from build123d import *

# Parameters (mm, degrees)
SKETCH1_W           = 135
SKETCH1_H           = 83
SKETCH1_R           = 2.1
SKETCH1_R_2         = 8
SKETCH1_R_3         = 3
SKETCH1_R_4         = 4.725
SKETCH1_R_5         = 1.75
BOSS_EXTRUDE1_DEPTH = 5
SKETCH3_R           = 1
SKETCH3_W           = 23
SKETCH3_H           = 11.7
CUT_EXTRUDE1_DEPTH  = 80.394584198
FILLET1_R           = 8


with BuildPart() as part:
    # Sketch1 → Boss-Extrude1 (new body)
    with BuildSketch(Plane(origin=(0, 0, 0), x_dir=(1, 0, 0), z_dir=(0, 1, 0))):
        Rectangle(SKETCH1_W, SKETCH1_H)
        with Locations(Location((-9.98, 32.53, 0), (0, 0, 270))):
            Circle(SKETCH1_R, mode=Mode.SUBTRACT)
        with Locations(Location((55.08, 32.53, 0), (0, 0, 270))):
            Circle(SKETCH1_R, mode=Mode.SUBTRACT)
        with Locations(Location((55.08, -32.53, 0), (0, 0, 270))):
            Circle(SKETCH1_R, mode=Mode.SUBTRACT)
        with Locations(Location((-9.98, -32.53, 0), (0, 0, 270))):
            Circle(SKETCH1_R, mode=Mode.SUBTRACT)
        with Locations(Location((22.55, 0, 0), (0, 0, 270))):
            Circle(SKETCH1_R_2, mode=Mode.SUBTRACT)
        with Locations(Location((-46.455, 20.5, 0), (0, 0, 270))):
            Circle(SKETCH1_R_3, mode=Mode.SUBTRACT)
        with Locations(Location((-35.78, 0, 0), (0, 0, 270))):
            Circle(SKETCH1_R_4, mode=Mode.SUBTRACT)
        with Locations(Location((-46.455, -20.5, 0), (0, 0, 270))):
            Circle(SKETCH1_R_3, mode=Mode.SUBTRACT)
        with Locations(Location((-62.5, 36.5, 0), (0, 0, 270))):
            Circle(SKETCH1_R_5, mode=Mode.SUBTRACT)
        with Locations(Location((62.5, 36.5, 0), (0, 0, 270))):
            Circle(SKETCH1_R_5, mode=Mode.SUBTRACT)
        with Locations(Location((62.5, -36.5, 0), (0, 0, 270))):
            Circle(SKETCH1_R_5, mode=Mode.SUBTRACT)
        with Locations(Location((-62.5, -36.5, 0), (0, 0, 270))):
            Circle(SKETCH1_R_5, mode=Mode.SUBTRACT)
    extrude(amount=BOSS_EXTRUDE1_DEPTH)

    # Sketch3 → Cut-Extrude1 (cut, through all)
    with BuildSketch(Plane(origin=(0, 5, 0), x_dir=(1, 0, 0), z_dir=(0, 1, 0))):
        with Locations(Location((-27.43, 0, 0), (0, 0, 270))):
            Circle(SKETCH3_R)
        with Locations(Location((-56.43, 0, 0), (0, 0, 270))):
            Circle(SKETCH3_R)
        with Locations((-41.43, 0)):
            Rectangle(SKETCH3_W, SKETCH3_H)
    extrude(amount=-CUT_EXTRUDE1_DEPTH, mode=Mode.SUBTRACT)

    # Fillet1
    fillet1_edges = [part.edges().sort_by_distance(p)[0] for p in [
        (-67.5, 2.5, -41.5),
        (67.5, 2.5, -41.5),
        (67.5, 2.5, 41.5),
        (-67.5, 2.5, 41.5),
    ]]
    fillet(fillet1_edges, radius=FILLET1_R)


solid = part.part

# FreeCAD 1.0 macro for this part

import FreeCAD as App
import Part
import Sketcher
Q = App.Units.Quantity


def edges_at(feature, points):
    """Names of the edges that pass closest to the given points."""
    edges = feature.Shape.Edges
    near = lambda p: min(range(len(edges)), key=lambda i: edges[i].distToShape(Part.Vertex(*p))[0])
    return sorted({f"Edge{near(p) + 1}" for p in points})


def add_polygon(sketch, points):
    """Adds a closed chain of lines whose ends are joined by coincident constraints."""
    first, n = sketch.GeometryCount, len(points)
    for a, b in zip(points, points[1:] + points[:1]):
        sketch.addGeometry(Part.LineSegment(App.Vector(*a, 0), App.Vector(*b, 0)), False)
    for i in range(n):
        sketch.addConstraint(Sketcher.Constraint("Coincident", first + i, 2, first + (i + 1) % n, 1))

doc = App.newDocument("Part")
body = doc.addObject("PartDesign::Body", "Body")

# Sketch on XZ plane
sketch1 = body.newObject("Sketcher::SketchObject", "Sketch")
sketch1.AttachmentSupport = (doc.getObject("XZ_Plane"), [""])
sketch1.MapMode = "FlatFace"
add_polygon(sketch1, [(-67.5, -41.5), (-67.5, 41.5), (67.5, 41.5), (67.5, -41.5)])  # lines 0-3
sketch1.addGeometry(Part.Circle(App.Vector(-62.5, 36.5, 0), App.Vector(0, 0, 1), 1.8), False)  # 4
sketch1.addGeometry(Part.Circle(App.Vector(-46.5, 20.5, 0), App.Vector(0, 0, 1), 3), False)  # 5
sketch1.addGeometry(Part.Circle(App.Vector(-10, 32.5, 0), App.Vector(0, 0, 1), 2.1), False)  # 6
sketch1.addGeometry(Part.Circle(App.Vector(62.5, 36.5, 0), App.Vector(0, 0, 1), 1.8), False)  # 7
sketch1.addGeometry(Part.Circle(App.Vector(55.1, 32.5, 0), App.Vector(0, 0, 1), 2.1), False)  # 8
sketch1.addGeometry(Part.Circle(App.Vector(-35.8, 0, 0), App.Vector(0, 0, 1), 4.7), False)  # 9
sketch1.addGeometry(Part.Circle(App.Vector(-46.5, -20.5, 0), App.Vector(0, 0, 1), 3), False)  # 10
sketch1.addGeometry(Part.Circle(App.Vector(-62.5, -36.5, 0), App.Vector(0, 0, 1), 1.8), False)  # 11
sketch1.addGeometry(Part.Circle(App.Vector(-10, -32.5, 0), App.Vector(0, 0, 1), 2.1), False)  # 12
sketch1.addGeometry(Part.Circle(App.Vector(22.6, 0, 0), App.Vector(0, 0, 1), 8), False)  # 13
sketch1.addGeometry(Part.Circle(App.Vector(55.1, -32.5, 0), App.Vector(0, 0, 1), 2.1), False)  # 14
sketch1.addGeometry(Part.Circle(App.Vector(62.5, -36.5, 0), App.Vector(0, 0, 1), 1.8), False)  # 15
sketch1.addConstraint([
    Sketcher.Constraint("Vertical", 0),
    Sketcher.Constraint("Horizontal", 1),
    Sketcher.Constraint("Vertical", 2),
    Sketcher.Constraint("Horizontal", 3),
    Sketcher.Constraint("Equal", 4, 7),
    Sketcher.Constraint("Equal", 6, 8),
    Sketcher.Constraint("Equal", 5, 10),
    Sketcher.Constraint("Equal", 7, 11),
    Sketcher.Constraint("Equal", 8, 12),
    Sketcher.Constraint("Equal", 12, 14),
    Sketcher.Constraint("Equal", 11, 15),
    Sketcher.Constraint("Symmetric", 7, 3, 11, 3, -1, 1),
    Sketcher.Constraint("Symmetric", 4, 3, 15, 3, -1, 1),
    Sketcher.Constraint("Symmetric", 0, 2, 2, 2, -1, 1),
    Sketcher.Constraint("Symmetric", 4, 3, 7, 3, -2),
    Sketcher.Constraint("Symmetric", 5, 3, 10, 3, -1),
    Sketcher.Constraint("Symmetric", 6, 3, 12, 3, -1),
    Sketcher.Constraint("Symmetric", 8, 3, 14, 3, -1),
    Sketcher.Constraint("PointOnObject", 9, 3, -1),
    Sketcher.Constraint("PointOnObject", 13, 3, -1),
    Sketcher.Constraint("Horizontal", 6, 3, 8, 3),
    Sketcher.Constraint("Diameter", 5, Q("6 mm")),
    Sketcher.Constraint("Diameter", 13, Q("16 mm")),
    Sketcher.Constraint("Diameter", 4, Q("3.5 mm")),
    Sketcher.Constraint("Diameter", 6, Q("4.2 mm")),
    Sketcher.Constraint("Diameter", 9, Q("9.45 mm")),
    Sketcher.Constraint("DistanceX", 1, 1, 1, 2, Q("135 mm")),
    Sketcher.Constraint("DistanceY", 0, 1, 0, 2, Q("83 mm")),
    Sketcher.Constraint("DistanceY", 5, 3, 4, 3, Q("16 mm")),
    Sketcher.Constraint("DistanceX", 4, 3, 7, 3, Q("125 mm")),
    Sketcher.Constraint("DistanceY", 10, 3, 5, 3, Q("41 mm")),
    Sketcher.Constraint("DistanceX", 9, 3, 6, 3, Q("25.8 mm")),
    Sketcher.Constraint("DistanceX", 6, 3, -1, 1, Q("9.98 mm")),
    Sketcher.Constraint("DistanceY", -1, 1, 6, 3, Q("32.53 mm")),
    Sketcher.Constraint("DistanceX", -1, 1, 8, 3, Q("55.08 mm")),
    Sketcher.Constraint("DistanceX", -1, 1, 13, 3, Q("22.55 mm")),
    Sketcher.Constraint("DistanceX", 5, 3, -1, 1, Q("46.455 mm")),
])
pad1 = body.newObject("PartDesign::Pad", "Pad")
pad1.Profile = sketch1
pad1.Length = 5
pad1.Reversed = True

# Sketch on XZ plane
sketch2 = body.newObject("Sketcher::SketchObject", "Sketch001")
sketch2.AttachmentSupport = (doc.getObject("XZ_Plane"), [""])
sketch2.MapMode = "FlatFace"
sketch2.AttachmentOffset = App.Placement(App.Vector(0, 0, -5), App.Rotation())
sketch2.addGeometry(Part.Circle(App.Vector(-27.4, 0, 0), App.Vector(0, 0, 1), 1), False)  # 0
sketch2.addGeometry(Part.Circle(App.Vector(-56.4, 0, 0), App.Vector(0, 0, 1), 1), False)  # 1
add_polygon(sketch2, [(-52.9, -5.8), (-52.9, 5.8), (-29.9, 5.8), (-29.9, -5.8)])  # lines 2-5
sketch2.addConstraint([
    Sketcher.Constraint("Vertical", 2),
    Sketcher.Constraint("Horizontal", 3),
    Sketcher.Constraint("Vertical", 4),
    Sketcher.Constraint("Horizontal", 5),
    Sketcher.Constraint("Equal", 0, 1),
    Sketcher.Constraint("PointOnObject", 0, 3, -1),
    Sketcher.Constraint("PointOnObject", 1, 3, -1),
    Sketcher.Constraint("Diameter", 0, Q("2 mm")),
    Sketcher.Constraint("DistanceX", 3, 1, 3, 2, Q("23 mm")),
    Sketcher.Constraint("DistanceY", 2, 1, 2, 2, Q("11.7 mm")),
    Sketcher.Constraint("DistanceX", 1, 3, 0, 3, Q("29 mm")),
    Sketcher.Constraint("DistanceX", 1, 3, 2, 2, Q("3.5 mm")),
    Sketcher.Constraint("DistanceX", 0, 3, -1, 1, Q("27.43 mm")),
    Sketcher.Constraint("DistanceY", -1, 1, 2, 2, Q("5.85 mm")),
])
pocket1 = body.newObject("PartDesign::Pocket", "Pocket")
pocket1.Profile = sketch2
pocket1.Type = "ThroughAll"
pocket1.Reversed = True
doc.recompute()

fillet = body.newObject("PartDesign::Fillet", "Fillet")
fillet.Base = (pocket1, edges_at(pocket1, [
    (-67.5, 2.5, -41.5),
    (67.5, 2.5, -41.5),
    (67.5, 2.5, 41.5),
    (-67.5, 2.5, 41.5),
]))
fillet.Radius = 8

doc.recompute()
